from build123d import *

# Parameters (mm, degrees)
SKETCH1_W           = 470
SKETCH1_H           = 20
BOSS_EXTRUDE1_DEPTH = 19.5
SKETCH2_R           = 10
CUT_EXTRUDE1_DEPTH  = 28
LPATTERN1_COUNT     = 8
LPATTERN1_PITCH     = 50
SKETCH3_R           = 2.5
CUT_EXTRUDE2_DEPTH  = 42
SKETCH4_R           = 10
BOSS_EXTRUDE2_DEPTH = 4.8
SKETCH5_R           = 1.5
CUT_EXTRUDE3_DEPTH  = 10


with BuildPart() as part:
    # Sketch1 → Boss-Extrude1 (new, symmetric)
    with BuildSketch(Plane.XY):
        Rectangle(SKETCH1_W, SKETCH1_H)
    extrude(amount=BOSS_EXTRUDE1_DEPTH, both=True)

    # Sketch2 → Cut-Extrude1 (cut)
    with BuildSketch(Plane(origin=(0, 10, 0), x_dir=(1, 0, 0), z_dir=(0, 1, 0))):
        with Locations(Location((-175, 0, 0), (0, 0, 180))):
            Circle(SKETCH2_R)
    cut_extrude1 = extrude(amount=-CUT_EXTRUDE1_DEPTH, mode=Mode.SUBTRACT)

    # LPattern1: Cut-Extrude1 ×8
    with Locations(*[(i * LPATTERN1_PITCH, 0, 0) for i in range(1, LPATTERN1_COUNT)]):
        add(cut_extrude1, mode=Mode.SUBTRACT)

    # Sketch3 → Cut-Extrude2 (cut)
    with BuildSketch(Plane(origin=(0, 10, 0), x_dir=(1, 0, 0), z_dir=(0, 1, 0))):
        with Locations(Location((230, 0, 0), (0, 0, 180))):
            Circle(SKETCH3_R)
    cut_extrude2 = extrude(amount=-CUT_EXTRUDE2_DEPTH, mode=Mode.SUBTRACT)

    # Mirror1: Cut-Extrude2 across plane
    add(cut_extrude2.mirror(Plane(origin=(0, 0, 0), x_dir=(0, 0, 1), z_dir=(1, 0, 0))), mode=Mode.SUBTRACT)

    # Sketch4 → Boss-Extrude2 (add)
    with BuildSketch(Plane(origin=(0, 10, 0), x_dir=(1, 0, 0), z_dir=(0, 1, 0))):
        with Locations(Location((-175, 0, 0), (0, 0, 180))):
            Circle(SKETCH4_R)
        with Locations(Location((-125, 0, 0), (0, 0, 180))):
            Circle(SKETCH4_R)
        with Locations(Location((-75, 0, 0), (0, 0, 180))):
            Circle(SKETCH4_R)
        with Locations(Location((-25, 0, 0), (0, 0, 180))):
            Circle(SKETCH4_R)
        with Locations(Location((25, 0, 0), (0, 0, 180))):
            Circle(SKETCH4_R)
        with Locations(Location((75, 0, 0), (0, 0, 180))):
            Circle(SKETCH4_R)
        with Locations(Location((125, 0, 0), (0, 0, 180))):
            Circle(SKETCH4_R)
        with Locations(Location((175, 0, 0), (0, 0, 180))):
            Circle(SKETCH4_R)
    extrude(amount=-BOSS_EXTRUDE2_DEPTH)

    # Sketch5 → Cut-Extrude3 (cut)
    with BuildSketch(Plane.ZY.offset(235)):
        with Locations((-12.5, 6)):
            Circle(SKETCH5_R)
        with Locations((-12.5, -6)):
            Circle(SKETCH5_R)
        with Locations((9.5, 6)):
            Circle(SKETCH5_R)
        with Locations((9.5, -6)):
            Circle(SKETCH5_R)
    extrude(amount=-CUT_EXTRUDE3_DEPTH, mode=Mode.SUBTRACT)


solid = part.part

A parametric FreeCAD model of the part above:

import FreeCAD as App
import Part
import Sketcher
Q = App.Units.Quantity


def add_polygon(sketch, points):
    """Adds a closed chain of lines whose ends are joined by coincident constraints."""
    first, n = sketch.GeometryCount, len(points)
    for a, b in zip(points, points[1:] + points[:1]):
        sketch.addGeometry(Part.LineSegment(App.Vector(*a, 0), App.Vector(*b, 0)), False)
    for i in range(n):
        sketch.addConstraint(Sketcher.Constraint("Coincident", first + i, 2, first + (i + 1) % n, 1))

doc = App.newDocument("Part")
body = doc.addObject("PartDesign::Body", "Body")

# Sketch on XY plane
sketch1 = body.newObject("Sketcher::SketchObject", "Sketch")
sketch1.AttachmentSupport = (doc.getObject("XY_Plane"), [""])
sketch1.MapMode = "FlatFace"
add_polygon(sketch1, [(-235, 10), (-235, -10), (235, -10), (235, 10)])  # lines 0-3
sketch1.addConstraint(Sketcher.Constraint("Vertical", 0))
sketch1.addConstraint(Sketcher.Constraint("Horizontal", 1))
sketch1.addConstraint(Sketcher.Constraint("Vertical", 2))
sketch1.addConstraint(Sketcher.Constraint("Horizontal", 3))
sketch1.addConstraint(Sketcher.Constraint("Symmetric", 0, 2, 2, 2, -1, 1))
sketch1.addConstraint(Sketcher.Constraint("DistanceX", 1, 1, 1, 2, Q("470 mm")))
sketch1.addConstraint(Sketcher.Constraint("DistanceY", 0, 2, 0, 1, Q("20 mm")))
pad1 = body.newObject("PartDesign::Pad", "Pad")
pad1.Profile = sketch1
pad1.Length = 39
pad1.Midplane = True

# Sketch on XZ plane
sketch2 = body.newObject("Sketcher::SketchObject", "Sketch001")
sketch2.AttachmentSupport = (doc.getObject("XZ_Plane"), [""])
sketch2.MapMode = "FlatFace"
sketch2.AttachmentOffset = App.Placement(App.Vector(0, 0, -10), App.Rotation())
sketch2.addGeometry(Part.Circle(App.Vector(-175, 0, 0), App.Vector(0, 0, 1), 10), False)
sketch2.addConstraint(Sketcher.Constraint("PointOnObject", 0, 3, -1))
sketch2.addConstraint(Sketcher.Constraint("Diameter", 0, Q("20 mm")))
sketch2.addConstraint(Sketcher.Constraint("DistanceX", 0, 3, -1, 1, Q("175 mm")))
pocket1 = body.newObject("PartDesign::Pocket", "Pocket")
pocket1.Profile = sketch2
pocket1.Length = 28
pocket1.Reversed = True
doc.recompute()

linearpattern = body.newObject("PartDesign::LinearPattern", "LinearPattern")
linearpattern.Originals = [pocket1]
linearpattern.Direction = (doc.getObject("X_Axis"), [""])
linearpattern.Mode = "offset"
linearpattern.Offset = 50
linearpattern.Occurrences = 8
body.Tip = linearpattern

# Sketch on XZ plane
sketch3 = body.newObject("Sketcher::SketchObject", "Sketch002")
sketch3.AttachmentSupport = (doc.getObject("XZ_Plane"), [""])
sketch3.MapMode = "FlatFace"
sketch3.AttachmentOffset = App.Placement(App.Vector(0, 0, -10), App.Rotation())
sketch3.addGeometry(Part.Circle(App.Vector(230, 0, 0), App.Vector(0, 0, 1), 2.5), False)
sketch3.addConstraint(Sketcher.Constraint("PointOnObject", 0, 3, -1))
sketch3.addConstraint(Sketcher.Constraint("Diameter", 0, Q("5 mm")))
sketch3.addConstraint(Sketcher.Constraint("DistanceX", -1, 1, 0, 3, Q("230 mm")))
pocket2 = body.newObject("PartDesign::Pocket", "Pocket001")
pocket2.Profile = sketch3
pocket2.Length = 42
pocket2.Reversed = True
doc.recompute()

mirrored = body.newObject("PartDesign::Mirrored", "Mirrored")
mirrored.Originals = [pocket2]
mirrored.MirrorPlane = (doc.getObject("YZ_Plane"), [""])
body.Tip = mirrored

# Sketch on XZ plane
sketch4 = body.newObject("Sketcher::SketchObject", "Sketch003")
sketch4.AttachmentSupport = (doc.getObject("XZ_Plane"), [""])
sketch4.MapMode = "FlatFace"
sketch4.AttachmentOffset = App.Placement(App.Vector(0, 0, -10), App.Rotation())
sketch4.addGeometry(Part.Circle(App.Vector(-175, 0, 0), App.Vector(0, 0, 1), 10), False)
sketch4.addGeometry(Part.Circle(App.Vector(-125, 0, 0), App.Vector(0, 0, 1), 10), False)
sketch4.addGeometry(Part.Circle(App.Vector(-75, 0, 0), App.Vector(0, 0, 1), 10), False)
sketch4.addGeometry(Part.Circle(App.Vector(-25, 0, 0), App.Vector(0, 0, 1), 10), False)
sketch4.addGeometry(Part.Circle(App.Vector(25, 0, 0), App.Vector(0, 0, 1), 10), False)
sketch4.addGeometry(Part.Circle(App.Vector(75, 0, 0), App.Vector(0, 0, 1), 10), False)
sketch4.addGeometry(Part.Circle(App.Vector(125, 0, 0), App.Vector(0, 0, 1), 10), False)
sketch4.addGeometry(Part.Circle(App.Vector(175, 0, 0), App.Vector(0, 0, 1), 10), False)
sketch4.addConstraint(Sketcher.Constraint("Equal", 0, 1))
sketch4.addConstraint(Sketcher.Constraint("Equal", 1, 2))
sketch4.addConstraint(Sketcher.Constraint("Equal", 2, 3))
sketch4.addConstraint(Sketcher.Constraint("Equal", 3, 4))
sketch4.addConstraint(Sketcher.Constraint("Equal", 4, 5))
sketch4.addConstraint(Sketcher.Constraint("Equal", 5, 6))
sketch4.addConstraint(Sketcher.Constraint("Equal", 6, 7))
sketch4.addConstraint(Sketcher.Constraint("Symmetric", 3, 3, 4, 3, -1, 1))
sketch4.addConstraint(Sketcher.Constraint("Symmetric", 2, 3, 5, 3, -1, 1))
sketch4.addConstraint(Sketcher.Constraint("Symmetric", 1, 3, 6, 3, -1, 1))
sketch4.addConstraint(Sketcher.Constraint("Symmetric", 0, 3, 7, 3, -1, 1))
sketch4.addConstraint(Sketcher.Constraint("PointOnObject", 0, 3, -1))
sketch4.addConstraint(Sketcher.Constraint("PointOnObject", 1, 3, -1))
sketch4.addConstraint(Sketcher.Constraint("PointOnObject", 2, 3, -1))
sketch4.addConstraint(Sketcher.Constraint("PointOnObject", 3, 3, -1))
sketch4.addConstraint(Sketcher.Constraint("Diameter", 0, Q("20 mm")))
sketch4.addConstraint(Sketcher.Constraint("DistanceX", 0, 3, -1, 1, Q("175 mm")))
sketch4.addConstraint(Sketcher.Constraint("DistanceX", 1, 3, -1, 1, Q("125 mm")))
sketch4.addConstraint(Sketcher.Constraint("DistanceX", 2, 3, -1, 1, Q("75 mm")))
sketch4.addConstraint(Sketcher.Constraint("DistanceX", 3, 3, -1, 1, Q("25 mm")))
pad2 = body.newObject("PartDesign::Pad", "Pad001")
pad2.Profile = sketch4
pad2.Length = 4.8

# Sketch on YZ plane
sketch5 = body.newObject("Sketcher::SketchObject", "Sketch004")
sketch5.AttachmentSupport = (doc.getObject("YZ_Plane"), [""])
sketch5.MapMode = "FlatFace"
sketch5.AttachmentOffset = App.Placement(App.Vector(0, 0, -235), App.Rotation())
sketch5.addGeometry(Part.Circle(App.Vector(6, -12.5, 0), App.Vector(0, 0, 1), 1.5), False)
sketch5.addGeometry(Part.Circle(App.Vector(-6, -12.5, 0), App.Vector(0, 0, 1), 1.5), False)
sketch5.addGeometry(Part.Circle(App.Vector(6, 9.5, 0), App.Vector(0, 0, 1), 1.5), False)
sketch5.addGeometry(Part.Circle(App.Vector(-6, 9.5, 0), App.Vector(0, 0, 1), 1.5), False)
sketch5.addConstraint(Sketcher.Constraint("Equal", 0, 1))
sketch5.addConstraint(Sketcher.Constraint("Equal", 1, 2))
sketch5.addConstraint(Sketcher.Constraint("Equal", 2, 3))
sketch5.addConstraint(Sketcher.Constraint("Symmetric", 0, 3, 1, 3, -2))
sketch5.addConstraint(Sketcher.Constraint("Symmetric", 2, 3, 3, 3, -2))
sketch5.addConstraint(Sketcher.Constraint("Vertical", 0, 3, 2, 3))
sketch5.addConstraint(Sketcher.Constraint("Diameter", 0, Q("3 mm")))
sketch5.addConstraint(Sketcher.Constraint("DistanceX", -1, 1, 0, 3, Q("6 mm")))
sketch5.addConstraint(Sketcher.Constraint("DistanceY", 0, 3, 2, 3, Q("22 mm")))
sketch5.addConstraint(Sketcher.Constraint("DistanceY", 0, 3, -1, 1, Q("12.5 mm")))
pocket3 = body.newObject("PartDesign::Pocket", "Pocket002")
pocket3.Profile = sketch5
pocket3.Length = 10
pocket3.Reversed = True

doc.recompute()
